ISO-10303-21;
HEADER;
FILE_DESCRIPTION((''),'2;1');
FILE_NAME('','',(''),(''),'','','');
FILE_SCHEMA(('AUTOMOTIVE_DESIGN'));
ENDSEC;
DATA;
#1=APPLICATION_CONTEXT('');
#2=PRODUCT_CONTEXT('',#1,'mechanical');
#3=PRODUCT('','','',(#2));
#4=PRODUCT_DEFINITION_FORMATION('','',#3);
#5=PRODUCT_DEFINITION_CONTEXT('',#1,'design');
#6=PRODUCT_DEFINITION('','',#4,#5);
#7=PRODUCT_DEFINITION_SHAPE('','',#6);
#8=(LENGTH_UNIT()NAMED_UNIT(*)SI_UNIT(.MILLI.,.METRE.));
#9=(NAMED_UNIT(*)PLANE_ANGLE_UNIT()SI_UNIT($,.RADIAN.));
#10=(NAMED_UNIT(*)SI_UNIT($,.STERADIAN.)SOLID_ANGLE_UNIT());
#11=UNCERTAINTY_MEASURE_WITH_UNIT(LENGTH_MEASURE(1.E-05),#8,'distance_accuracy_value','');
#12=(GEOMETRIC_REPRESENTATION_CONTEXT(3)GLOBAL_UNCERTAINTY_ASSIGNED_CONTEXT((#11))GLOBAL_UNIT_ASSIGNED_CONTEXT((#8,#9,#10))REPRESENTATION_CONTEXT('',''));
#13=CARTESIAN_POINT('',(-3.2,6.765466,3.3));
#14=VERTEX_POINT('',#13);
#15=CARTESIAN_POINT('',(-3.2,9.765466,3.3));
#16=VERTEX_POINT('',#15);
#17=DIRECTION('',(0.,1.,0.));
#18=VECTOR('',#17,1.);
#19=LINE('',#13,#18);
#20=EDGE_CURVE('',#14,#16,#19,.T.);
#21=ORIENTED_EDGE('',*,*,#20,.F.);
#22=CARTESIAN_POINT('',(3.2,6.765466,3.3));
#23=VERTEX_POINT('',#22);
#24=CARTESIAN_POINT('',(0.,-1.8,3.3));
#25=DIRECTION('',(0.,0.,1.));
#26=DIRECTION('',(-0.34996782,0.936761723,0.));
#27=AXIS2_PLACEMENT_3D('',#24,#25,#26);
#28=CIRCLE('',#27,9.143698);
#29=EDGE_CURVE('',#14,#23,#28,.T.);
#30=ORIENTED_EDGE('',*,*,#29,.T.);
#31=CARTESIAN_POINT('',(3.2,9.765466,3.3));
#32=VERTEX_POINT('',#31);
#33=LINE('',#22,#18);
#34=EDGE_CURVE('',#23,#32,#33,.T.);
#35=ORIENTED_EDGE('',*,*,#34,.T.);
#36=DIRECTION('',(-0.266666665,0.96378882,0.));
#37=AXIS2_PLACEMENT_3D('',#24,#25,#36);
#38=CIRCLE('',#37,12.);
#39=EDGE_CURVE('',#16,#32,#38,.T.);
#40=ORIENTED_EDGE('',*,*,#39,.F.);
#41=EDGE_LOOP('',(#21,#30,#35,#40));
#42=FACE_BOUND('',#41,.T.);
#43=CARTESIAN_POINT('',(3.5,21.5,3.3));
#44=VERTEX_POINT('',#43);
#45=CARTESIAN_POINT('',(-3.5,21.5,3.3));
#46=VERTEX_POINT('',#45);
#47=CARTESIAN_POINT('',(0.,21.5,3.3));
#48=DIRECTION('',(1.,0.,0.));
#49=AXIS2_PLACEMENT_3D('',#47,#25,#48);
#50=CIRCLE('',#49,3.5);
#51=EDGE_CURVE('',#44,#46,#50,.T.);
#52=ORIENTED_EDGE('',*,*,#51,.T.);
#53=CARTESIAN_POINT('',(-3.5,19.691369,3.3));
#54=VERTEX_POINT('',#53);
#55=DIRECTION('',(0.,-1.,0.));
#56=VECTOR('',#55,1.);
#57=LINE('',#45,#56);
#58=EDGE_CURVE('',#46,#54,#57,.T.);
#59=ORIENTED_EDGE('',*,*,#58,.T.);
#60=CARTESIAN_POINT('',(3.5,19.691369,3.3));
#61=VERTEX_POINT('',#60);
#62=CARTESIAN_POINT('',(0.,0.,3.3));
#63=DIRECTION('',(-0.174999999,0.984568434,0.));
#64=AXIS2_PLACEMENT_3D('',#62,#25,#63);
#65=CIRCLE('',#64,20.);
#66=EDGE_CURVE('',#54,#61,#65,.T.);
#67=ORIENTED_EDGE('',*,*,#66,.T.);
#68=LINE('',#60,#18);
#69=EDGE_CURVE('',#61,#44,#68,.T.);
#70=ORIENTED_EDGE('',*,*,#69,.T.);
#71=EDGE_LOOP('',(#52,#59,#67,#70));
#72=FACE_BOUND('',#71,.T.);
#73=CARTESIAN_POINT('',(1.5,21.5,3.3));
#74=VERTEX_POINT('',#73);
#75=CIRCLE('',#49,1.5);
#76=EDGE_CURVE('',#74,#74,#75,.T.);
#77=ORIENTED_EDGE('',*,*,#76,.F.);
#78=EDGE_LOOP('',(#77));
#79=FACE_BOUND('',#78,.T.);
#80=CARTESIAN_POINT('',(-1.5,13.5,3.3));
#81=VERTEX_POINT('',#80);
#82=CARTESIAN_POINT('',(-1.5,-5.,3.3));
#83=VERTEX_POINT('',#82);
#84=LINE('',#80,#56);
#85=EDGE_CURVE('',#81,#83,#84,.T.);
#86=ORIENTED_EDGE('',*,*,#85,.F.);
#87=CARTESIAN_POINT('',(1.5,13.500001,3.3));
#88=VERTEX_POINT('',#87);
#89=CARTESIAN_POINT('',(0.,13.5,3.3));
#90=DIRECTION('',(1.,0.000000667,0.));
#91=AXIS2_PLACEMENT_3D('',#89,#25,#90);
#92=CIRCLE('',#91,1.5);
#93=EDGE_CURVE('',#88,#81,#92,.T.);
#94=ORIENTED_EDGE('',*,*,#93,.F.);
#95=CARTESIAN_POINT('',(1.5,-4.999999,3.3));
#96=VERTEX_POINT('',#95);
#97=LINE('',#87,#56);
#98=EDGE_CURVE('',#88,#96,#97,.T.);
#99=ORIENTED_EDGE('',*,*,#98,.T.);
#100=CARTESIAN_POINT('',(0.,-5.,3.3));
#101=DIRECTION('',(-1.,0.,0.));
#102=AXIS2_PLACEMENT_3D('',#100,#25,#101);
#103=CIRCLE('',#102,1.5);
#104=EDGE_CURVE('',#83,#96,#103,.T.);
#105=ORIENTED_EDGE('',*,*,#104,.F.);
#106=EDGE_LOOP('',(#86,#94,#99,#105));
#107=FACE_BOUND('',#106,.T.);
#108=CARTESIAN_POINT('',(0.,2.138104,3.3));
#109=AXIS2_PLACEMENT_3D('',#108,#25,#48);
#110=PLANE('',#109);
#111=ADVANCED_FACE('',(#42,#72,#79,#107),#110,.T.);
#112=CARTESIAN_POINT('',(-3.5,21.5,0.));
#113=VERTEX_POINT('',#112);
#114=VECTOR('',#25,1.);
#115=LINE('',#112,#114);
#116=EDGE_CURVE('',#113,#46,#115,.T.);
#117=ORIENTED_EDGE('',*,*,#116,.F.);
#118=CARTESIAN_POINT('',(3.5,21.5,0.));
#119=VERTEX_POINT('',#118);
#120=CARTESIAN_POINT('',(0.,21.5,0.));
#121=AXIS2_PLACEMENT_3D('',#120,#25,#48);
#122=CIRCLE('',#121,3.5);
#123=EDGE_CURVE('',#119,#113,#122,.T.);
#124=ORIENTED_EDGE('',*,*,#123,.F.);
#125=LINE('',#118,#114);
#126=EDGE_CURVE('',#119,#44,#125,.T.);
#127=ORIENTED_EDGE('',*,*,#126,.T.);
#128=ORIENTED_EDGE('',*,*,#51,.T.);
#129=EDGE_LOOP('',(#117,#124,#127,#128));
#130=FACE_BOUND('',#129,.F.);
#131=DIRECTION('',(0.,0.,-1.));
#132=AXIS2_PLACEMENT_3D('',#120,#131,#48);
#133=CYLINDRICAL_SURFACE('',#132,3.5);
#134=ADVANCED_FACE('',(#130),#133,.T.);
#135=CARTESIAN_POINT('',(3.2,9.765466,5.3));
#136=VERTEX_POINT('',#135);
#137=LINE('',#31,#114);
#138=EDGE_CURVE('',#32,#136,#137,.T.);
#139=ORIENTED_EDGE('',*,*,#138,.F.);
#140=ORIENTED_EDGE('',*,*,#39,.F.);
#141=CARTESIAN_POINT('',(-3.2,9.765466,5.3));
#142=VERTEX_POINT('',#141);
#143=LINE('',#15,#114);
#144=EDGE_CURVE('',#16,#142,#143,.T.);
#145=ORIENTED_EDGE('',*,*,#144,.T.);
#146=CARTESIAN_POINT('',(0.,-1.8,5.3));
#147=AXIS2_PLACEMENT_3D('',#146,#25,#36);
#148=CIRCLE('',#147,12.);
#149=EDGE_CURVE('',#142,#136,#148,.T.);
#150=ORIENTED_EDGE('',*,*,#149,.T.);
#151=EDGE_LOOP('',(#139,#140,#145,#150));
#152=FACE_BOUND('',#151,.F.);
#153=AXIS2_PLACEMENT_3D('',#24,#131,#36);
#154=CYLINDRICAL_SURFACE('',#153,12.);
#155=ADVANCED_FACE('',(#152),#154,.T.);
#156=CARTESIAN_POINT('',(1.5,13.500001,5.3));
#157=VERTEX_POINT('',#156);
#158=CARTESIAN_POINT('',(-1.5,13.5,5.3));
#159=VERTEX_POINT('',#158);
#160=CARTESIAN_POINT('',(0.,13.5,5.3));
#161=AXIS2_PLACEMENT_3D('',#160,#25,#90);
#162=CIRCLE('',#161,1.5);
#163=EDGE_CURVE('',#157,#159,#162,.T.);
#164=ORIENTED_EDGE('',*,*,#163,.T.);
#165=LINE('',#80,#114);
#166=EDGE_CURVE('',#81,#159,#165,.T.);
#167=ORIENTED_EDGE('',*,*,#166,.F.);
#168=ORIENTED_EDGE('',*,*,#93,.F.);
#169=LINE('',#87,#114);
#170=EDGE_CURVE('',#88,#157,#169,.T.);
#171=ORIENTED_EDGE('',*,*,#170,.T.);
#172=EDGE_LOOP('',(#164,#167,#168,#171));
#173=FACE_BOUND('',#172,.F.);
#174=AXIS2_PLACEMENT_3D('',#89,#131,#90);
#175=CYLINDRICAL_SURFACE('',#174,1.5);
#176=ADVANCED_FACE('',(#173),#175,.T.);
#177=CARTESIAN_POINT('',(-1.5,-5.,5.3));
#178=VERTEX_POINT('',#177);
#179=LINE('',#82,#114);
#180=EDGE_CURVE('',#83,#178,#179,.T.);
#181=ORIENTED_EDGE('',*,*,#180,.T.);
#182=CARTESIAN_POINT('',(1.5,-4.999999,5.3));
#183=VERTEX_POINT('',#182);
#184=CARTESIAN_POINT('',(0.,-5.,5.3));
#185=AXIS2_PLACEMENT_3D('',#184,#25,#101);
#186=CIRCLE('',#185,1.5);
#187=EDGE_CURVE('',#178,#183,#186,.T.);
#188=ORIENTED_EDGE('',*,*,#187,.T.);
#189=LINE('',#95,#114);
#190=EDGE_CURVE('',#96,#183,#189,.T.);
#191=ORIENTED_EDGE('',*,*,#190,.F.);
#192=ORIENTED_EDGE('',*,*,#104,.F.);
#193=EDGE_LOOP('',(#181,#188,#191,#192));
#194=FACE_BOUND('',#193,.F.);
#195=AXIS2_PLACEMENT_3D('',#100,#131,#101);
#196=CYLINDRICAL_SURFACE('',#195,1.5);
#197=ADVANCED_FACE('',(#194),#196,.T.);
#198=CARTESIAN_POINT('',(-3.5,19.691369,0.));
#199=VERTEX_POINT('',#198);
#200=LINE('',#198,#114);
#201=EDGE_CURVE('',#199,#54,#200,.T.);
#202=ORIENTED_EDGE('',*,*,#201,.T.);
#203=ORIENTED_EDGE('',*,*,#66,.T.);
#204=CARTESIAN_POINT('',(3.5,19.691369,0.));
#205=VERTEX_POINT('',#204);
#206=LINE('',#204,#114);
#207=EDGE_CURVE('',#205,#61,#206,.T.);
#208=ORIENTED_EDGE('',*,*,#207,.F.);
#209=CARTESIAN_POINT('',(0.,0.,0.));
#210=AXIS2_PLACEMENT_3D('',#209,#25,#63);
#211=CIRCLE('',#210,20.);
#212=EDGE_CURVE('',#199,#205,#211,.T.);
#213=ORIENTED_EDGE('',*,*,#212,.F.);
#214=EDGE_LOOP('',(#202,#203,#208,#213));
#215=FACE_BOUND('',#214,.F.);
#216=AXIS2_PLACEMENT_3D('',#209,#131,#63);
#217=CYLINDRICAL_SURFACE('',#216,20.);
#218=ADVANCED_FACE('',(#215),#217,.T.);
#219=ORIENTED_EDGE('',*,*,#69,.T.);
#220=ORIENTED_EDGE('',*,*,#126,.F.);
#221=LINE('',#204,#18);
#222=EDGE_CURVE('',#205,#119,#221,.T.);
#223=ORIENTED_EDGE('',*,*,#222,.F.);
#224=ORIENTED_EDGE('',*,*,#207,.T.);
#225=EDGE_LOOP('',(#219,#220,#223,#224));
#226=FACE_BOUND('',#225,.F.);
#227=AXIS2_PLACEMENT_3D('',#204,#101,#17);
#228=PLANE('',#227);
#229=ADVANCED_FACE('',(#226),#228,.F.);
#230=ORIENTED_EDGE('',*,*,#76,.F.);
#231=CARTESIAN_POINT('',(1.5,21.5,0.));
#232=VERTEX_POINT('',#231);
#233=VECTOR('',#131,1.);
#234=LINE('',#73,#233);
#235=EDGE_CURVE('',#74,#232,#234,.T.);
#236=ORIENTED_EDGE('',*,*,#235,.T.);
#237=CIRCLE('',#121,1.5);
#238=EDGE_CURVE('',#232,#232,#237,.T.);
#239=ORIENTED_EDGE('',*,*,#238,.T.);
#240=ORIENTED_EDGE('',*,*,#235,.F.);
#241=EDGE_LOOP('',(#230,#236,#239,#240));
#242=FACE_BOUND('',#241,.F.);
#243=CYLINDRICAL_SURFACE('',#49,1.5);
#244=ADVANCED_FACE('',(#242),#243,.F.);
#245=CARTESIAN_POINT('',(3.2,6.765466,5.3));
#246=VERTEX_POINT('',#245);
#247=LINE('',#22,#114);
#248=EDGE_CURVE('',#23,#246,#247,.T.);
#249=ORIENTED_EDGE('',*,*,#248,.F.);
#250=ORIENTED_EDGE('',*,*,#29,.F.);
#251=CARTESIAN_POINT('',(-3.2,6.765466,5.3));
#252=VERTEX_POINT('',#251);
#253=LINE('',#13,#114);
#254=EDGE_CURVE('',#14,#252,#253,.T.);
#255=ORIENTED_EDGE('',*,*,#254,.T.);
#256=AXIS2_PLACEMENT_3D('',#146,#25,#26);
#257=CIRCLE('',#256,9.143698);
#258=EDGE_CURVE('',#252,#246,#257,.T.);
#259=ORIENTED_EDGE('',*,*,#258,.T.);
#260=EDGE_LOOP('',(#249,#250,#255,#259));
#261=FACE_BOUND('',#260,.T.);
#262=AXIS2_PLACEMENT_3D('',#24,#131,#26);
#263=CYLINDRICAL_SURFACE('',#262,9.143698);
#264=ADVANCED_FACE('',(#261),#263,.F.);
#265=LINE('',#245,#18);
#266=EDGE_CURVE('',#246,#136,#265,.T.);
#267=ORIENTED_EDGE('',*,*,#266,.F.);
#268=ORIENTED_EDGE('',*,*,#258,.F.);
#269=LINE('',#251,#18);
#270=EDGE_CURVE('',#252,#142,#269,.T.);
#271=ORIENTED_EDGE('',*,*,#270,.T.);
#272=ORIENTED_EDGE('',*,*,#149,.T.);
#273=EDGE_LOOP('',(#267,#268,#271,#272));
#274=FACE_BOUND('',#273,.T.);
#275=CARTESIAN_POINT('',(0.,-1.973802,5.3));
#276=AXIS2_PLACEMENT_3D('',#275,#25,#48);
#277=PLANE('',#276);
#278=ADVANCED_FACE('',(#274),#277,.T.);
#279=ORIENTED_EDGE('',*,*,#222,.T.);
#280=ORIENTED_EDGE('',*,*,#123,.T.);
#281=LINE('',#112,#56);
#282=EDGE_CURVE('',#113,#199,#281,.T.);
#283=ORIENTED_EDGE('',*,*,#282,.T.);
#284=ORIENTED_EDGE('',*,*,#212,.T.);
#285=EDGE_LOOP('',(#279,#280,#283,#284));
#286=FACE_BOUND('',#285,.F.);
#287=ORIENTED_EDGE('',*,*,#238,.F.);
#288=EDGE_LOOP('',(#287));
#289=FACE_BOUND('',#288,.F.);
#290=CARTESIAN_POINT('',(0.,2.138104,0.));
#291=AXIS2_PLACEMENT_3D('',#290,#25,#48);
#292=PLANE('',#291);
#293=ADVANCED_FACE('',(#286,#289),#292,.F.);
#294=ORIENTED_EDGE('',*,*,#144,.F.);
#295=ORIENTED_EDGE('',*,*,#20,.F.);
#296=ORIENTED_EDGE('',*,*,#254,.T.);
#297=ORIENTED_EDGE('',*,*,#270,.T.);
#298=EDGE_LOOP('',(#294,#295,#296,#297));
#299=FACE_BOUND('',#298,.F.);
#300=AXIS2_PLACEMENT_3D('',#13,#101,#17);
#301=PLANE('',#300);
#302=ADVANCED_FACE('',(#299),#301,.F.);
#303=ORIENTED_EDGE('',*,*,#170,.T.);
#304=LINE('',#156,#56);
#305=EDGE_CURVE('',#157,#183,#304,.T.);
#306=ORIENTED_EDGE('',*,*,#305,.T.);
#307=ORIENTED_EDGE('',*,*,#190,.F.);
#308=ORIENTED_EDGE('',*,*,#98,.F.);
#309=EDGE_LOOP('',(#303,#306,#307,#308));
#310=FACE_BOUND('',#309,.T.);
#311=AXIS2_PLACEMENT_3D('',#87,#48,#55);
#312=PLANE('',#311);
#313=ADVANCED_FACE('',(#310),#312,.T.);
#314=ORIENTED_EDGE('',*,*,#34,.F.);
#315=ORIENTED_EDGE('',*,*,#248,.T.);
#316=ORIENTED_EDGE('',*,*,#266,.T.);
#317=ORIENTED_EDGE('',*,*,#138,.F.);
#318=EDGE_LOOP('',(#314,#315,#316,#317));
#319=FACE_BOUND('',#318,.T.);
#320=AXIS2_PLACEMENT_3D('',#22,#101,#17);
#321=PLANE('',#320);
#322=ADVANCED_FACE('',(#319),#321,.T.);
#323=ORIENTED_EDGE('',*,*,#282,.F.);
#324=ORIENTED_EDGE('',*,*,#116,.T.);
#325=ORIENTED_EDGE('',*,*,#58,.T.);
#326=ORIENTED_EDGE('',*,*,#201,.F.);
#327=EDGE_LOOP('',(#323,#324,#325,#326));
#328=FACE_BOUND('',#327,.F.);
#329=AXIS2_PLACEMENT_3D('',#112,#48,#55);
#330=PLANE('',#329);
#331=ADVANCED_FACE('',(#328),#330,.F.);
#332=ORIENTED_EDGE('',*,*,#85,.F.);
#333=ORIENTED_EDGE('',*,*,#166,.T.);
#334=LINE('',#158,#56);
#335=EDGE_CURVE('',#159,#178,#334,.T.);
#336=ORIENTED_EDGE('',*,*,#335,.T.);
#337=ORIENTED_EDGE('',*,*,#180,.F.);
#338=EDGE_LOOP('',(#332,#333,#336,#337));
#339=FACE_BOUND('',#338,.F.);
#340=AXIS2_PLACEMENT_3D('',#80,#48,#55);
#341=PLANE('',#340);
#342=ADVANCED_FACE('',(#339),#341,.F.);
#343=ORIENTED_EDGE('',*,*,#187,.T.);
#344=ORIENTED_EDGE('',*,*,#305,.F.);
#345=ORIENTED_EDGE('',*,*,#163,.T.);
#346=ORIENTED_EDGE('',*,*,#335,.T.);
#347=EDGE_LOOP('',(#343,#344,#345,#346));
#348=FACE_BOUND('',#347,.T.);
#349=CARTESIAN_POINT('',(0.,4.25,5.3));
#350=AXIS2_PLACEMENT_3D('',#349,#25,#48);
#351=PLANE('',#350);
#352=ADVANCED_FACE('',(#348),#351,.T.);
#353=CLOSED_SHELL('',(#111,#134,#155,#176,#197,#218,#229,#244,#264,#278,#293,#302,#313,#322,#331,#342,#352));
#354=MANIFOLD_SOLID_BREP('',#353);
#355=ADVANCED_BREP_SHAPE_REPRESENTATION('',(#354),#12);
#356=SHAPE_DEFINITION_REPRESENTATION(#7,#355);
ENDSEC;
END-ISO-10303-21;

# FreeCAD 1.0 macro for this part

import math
import FreeCAD as App
import Part
import Sketcher
from FreeCAD import Vector
Q = App.Units.Quantity

doc = App.newDocument("Part")
body = doc.addObject("PartDesign::Body", "Body")

# Sketch on XY plane
sketch1 = body.newObject("Sketcher::SketchObject", "Sketch")
sketch1.AttachmentSupport = (doc.getObject("XY_Plane"), [""])
sketch1.MapMode = "FlatFace"
sketch1.addGeometry([
    Part.ArcOfCircle(Part.Circle(Vector(0, 21.5, 0), Vector(0, 0, 1), 3.5), math.radians(0), math.radians(180)),
    Part.LineSegment(Vector(-3.5, 21.5, 0), Vector(-3.5, 19.7, 0)),
    Part.ArcOfCircle(Part.Circle(Vector(0, 0, 0), Vector(0, 0, 1), 20), math.radians(100), math.radians(440)),
    Part.LineSegment(Vector(3.5, 19.7, 0), Vector(3.5, 21.5, 0)),
], False)
sketch1.addConstraint([
    Sketcher.Constraint("Tangent", 0, 2, 1, 1),
    Sketcher.Constraint("Coincident", 1, 2, 2, 1),
    Sketcher.Constraint("Coincident", 2, 2, 3, 1),
    Sketcher.Constraint("Tangent", 3, 2, 0, 1),
    Sketcher.Constraint("Vertical", 1),
    Sketcher.Constraint("Vertical", 3),
    Sketcher.Constraint("Coincident", 2, 3, -1, 1),
    Sketcher.Constraint("PointOnObject", 0, 3, -2),
    Sketcher.Constraint("Radius", 2, Q("20 mm")),
    Sketcher.Constraint("Radius", 0, Q("3.5 mm")),
    Sketcher.Constraint("DistanceY", -1, 1, 0, 3, Q("21.5 mm")),
])
pad1 = body.newObject("PartDesign::Pad", "Pad")
pad1.Profile = sketch1
pad1.Length = 3.3

# Sketch on XY plane
sketch2 = body.newObject("Sketcher::SketchObject", "Sketch001")
sketch2.AttachmentSupport = (doc.getObject("XY_Plane"), [""])
sketch2.MapMode = "FlatFace"
sketch2.AttachmentOffset = App.Placement(Vector(0, 0, 3.3), App.Rotation())
sketch2.addGeometry(Part.Circle(Vector(0, 21.5, 0), Vector(0, 0, 1), 1.5), False)
sketch2.addConstraint([
    Sketcher.Constraint("PointOnObject", 0, 3, -2),
    Sketcher.Constraint("Diameter", 0, Q("3 mm")),
    Sketcher.Constraint("DistanceY", -1, 1, 0, 3, Q("21.5 mm")),
])
pocket1 = body.newObject("PartDesign::Pocket", "Pocket")
pocket1.Profile = sketch2
pocket1.Type = "ThroughAll"

# Sketch on XY plane
sketch3 = body.newObject("Sketcher::SketchObject", "Sketch002")
sketch3.AttachmentSupport = (doc.getObject("XY_Plane"), [""])
sketch3.MapMode = "FlatFace"
sketch3.AttachmentOffset = App.Placement(Vector(0, 0, 3.3), App.Rotation())
sketch3.addGeometry([
    Part.ArcOfCircle(Part.Circle(Vector(0, 13.5, 0), Vector(0, 0, 1), 1.5), math.radians(0), math.radians(180)),  # 0
    Part.LineSegment(Vector(-1.5, 13.5, 0), Vector(-1.5, -5, 0)),  # 1
    Part.ArcOfCircle(Part.Circle(Vector(0, -5, 0), Vector(0, 0, 1), 1.5), math.radians(180), math.radians(360)),  # 2
    Part.LineSegment(Vector(1.5, -5, 0), Vector(1.5, 13.5, 0)),  # 3
    Part.LineSegment(Vector(-3.2, 6.8, 0), Vector(-3.2, 9.8, 0)),  # 4
    Part.ArcOfCircle(Part.Circle(Vector(0, -1.8, 0), Vector(0, 0, 1), 12), math.radians(105), math.radians(435)),  # 5
    Part.LineSegment(Vector(3.2, 9.8, 0), Vector(3.2, 6.8, 0)),  # 6
    Part.ArcOfCircle(Part.Circle(Vector(0, -1.8, 0), Vector(0, 0, 1), 9.1), math.radians(110), math.radians(430)),  # 7
], False)
sketch3.addConstraint([
    Sketcher.Constraint("Tangent", 0, 2, 1, 1),
    Sketcher.Constraint("Tangent", 1, 2, 2, 1),
    Sketcher.Constraint("Tangent", 2, 2, 3, 1),
    Sketcher.Constraint("Tangent", 3, 2, 0, 1),
    Sketcher.Constraint("Coincident", 4, 2, 5, 1),
    Sketcher.Constraint("Coincident", 5, 2, 6, 1),
    Sketcher.Constraint("Coincident", 6, 2, 7, 2),
    Sketcher.Constraint("Coincident", 7, 1, 4, 1),
    Sketcher.Constraint("Vertical", 1),
    Sketcher.Constraint("Vertical", 3),
    Sketcher.Constraint("Vertical", 4),
    Sketcher.Constraint("Vertical", 6),
    Sketcher.Constraint("Coincident", 7, 3, 5, 3),
    Sketcher.Constraint("Symmetric", 4, 2, 5, 2, -2),
    Sketcher.Constraint("PointOnObject", 0, 3, -2),
    Sketcher.Constraint("Radius", 5, Q("12 mm")),
    Sketcher.Constraint("Radius", 0, Q("1.5 mm")),
    Sketcher.Constraint("DistanceY", 4, 1, 4, 2, Q("3 mm")),
    Sketcher.Constraint("DistanceY", 1, 2, 1, 1, Q("18.5 mm")),
    Sketcher.Constraint("DistanceY", 2, 3, -1, 1, Q("5 mm")),
    Sketcher.Constraint("DistanceY", 5, 3, -1, 1, Q("1.8 mm")),
    Sketcher.Constraint("DistanceX", 4, 2, -1, 1, Q("3.2 mm")),
])
pad2 = body.newObject("PartDesign::Pad", "Pad001")
pad2.Profile = sketch3
pad2.Length = 2

doc.recompute()
